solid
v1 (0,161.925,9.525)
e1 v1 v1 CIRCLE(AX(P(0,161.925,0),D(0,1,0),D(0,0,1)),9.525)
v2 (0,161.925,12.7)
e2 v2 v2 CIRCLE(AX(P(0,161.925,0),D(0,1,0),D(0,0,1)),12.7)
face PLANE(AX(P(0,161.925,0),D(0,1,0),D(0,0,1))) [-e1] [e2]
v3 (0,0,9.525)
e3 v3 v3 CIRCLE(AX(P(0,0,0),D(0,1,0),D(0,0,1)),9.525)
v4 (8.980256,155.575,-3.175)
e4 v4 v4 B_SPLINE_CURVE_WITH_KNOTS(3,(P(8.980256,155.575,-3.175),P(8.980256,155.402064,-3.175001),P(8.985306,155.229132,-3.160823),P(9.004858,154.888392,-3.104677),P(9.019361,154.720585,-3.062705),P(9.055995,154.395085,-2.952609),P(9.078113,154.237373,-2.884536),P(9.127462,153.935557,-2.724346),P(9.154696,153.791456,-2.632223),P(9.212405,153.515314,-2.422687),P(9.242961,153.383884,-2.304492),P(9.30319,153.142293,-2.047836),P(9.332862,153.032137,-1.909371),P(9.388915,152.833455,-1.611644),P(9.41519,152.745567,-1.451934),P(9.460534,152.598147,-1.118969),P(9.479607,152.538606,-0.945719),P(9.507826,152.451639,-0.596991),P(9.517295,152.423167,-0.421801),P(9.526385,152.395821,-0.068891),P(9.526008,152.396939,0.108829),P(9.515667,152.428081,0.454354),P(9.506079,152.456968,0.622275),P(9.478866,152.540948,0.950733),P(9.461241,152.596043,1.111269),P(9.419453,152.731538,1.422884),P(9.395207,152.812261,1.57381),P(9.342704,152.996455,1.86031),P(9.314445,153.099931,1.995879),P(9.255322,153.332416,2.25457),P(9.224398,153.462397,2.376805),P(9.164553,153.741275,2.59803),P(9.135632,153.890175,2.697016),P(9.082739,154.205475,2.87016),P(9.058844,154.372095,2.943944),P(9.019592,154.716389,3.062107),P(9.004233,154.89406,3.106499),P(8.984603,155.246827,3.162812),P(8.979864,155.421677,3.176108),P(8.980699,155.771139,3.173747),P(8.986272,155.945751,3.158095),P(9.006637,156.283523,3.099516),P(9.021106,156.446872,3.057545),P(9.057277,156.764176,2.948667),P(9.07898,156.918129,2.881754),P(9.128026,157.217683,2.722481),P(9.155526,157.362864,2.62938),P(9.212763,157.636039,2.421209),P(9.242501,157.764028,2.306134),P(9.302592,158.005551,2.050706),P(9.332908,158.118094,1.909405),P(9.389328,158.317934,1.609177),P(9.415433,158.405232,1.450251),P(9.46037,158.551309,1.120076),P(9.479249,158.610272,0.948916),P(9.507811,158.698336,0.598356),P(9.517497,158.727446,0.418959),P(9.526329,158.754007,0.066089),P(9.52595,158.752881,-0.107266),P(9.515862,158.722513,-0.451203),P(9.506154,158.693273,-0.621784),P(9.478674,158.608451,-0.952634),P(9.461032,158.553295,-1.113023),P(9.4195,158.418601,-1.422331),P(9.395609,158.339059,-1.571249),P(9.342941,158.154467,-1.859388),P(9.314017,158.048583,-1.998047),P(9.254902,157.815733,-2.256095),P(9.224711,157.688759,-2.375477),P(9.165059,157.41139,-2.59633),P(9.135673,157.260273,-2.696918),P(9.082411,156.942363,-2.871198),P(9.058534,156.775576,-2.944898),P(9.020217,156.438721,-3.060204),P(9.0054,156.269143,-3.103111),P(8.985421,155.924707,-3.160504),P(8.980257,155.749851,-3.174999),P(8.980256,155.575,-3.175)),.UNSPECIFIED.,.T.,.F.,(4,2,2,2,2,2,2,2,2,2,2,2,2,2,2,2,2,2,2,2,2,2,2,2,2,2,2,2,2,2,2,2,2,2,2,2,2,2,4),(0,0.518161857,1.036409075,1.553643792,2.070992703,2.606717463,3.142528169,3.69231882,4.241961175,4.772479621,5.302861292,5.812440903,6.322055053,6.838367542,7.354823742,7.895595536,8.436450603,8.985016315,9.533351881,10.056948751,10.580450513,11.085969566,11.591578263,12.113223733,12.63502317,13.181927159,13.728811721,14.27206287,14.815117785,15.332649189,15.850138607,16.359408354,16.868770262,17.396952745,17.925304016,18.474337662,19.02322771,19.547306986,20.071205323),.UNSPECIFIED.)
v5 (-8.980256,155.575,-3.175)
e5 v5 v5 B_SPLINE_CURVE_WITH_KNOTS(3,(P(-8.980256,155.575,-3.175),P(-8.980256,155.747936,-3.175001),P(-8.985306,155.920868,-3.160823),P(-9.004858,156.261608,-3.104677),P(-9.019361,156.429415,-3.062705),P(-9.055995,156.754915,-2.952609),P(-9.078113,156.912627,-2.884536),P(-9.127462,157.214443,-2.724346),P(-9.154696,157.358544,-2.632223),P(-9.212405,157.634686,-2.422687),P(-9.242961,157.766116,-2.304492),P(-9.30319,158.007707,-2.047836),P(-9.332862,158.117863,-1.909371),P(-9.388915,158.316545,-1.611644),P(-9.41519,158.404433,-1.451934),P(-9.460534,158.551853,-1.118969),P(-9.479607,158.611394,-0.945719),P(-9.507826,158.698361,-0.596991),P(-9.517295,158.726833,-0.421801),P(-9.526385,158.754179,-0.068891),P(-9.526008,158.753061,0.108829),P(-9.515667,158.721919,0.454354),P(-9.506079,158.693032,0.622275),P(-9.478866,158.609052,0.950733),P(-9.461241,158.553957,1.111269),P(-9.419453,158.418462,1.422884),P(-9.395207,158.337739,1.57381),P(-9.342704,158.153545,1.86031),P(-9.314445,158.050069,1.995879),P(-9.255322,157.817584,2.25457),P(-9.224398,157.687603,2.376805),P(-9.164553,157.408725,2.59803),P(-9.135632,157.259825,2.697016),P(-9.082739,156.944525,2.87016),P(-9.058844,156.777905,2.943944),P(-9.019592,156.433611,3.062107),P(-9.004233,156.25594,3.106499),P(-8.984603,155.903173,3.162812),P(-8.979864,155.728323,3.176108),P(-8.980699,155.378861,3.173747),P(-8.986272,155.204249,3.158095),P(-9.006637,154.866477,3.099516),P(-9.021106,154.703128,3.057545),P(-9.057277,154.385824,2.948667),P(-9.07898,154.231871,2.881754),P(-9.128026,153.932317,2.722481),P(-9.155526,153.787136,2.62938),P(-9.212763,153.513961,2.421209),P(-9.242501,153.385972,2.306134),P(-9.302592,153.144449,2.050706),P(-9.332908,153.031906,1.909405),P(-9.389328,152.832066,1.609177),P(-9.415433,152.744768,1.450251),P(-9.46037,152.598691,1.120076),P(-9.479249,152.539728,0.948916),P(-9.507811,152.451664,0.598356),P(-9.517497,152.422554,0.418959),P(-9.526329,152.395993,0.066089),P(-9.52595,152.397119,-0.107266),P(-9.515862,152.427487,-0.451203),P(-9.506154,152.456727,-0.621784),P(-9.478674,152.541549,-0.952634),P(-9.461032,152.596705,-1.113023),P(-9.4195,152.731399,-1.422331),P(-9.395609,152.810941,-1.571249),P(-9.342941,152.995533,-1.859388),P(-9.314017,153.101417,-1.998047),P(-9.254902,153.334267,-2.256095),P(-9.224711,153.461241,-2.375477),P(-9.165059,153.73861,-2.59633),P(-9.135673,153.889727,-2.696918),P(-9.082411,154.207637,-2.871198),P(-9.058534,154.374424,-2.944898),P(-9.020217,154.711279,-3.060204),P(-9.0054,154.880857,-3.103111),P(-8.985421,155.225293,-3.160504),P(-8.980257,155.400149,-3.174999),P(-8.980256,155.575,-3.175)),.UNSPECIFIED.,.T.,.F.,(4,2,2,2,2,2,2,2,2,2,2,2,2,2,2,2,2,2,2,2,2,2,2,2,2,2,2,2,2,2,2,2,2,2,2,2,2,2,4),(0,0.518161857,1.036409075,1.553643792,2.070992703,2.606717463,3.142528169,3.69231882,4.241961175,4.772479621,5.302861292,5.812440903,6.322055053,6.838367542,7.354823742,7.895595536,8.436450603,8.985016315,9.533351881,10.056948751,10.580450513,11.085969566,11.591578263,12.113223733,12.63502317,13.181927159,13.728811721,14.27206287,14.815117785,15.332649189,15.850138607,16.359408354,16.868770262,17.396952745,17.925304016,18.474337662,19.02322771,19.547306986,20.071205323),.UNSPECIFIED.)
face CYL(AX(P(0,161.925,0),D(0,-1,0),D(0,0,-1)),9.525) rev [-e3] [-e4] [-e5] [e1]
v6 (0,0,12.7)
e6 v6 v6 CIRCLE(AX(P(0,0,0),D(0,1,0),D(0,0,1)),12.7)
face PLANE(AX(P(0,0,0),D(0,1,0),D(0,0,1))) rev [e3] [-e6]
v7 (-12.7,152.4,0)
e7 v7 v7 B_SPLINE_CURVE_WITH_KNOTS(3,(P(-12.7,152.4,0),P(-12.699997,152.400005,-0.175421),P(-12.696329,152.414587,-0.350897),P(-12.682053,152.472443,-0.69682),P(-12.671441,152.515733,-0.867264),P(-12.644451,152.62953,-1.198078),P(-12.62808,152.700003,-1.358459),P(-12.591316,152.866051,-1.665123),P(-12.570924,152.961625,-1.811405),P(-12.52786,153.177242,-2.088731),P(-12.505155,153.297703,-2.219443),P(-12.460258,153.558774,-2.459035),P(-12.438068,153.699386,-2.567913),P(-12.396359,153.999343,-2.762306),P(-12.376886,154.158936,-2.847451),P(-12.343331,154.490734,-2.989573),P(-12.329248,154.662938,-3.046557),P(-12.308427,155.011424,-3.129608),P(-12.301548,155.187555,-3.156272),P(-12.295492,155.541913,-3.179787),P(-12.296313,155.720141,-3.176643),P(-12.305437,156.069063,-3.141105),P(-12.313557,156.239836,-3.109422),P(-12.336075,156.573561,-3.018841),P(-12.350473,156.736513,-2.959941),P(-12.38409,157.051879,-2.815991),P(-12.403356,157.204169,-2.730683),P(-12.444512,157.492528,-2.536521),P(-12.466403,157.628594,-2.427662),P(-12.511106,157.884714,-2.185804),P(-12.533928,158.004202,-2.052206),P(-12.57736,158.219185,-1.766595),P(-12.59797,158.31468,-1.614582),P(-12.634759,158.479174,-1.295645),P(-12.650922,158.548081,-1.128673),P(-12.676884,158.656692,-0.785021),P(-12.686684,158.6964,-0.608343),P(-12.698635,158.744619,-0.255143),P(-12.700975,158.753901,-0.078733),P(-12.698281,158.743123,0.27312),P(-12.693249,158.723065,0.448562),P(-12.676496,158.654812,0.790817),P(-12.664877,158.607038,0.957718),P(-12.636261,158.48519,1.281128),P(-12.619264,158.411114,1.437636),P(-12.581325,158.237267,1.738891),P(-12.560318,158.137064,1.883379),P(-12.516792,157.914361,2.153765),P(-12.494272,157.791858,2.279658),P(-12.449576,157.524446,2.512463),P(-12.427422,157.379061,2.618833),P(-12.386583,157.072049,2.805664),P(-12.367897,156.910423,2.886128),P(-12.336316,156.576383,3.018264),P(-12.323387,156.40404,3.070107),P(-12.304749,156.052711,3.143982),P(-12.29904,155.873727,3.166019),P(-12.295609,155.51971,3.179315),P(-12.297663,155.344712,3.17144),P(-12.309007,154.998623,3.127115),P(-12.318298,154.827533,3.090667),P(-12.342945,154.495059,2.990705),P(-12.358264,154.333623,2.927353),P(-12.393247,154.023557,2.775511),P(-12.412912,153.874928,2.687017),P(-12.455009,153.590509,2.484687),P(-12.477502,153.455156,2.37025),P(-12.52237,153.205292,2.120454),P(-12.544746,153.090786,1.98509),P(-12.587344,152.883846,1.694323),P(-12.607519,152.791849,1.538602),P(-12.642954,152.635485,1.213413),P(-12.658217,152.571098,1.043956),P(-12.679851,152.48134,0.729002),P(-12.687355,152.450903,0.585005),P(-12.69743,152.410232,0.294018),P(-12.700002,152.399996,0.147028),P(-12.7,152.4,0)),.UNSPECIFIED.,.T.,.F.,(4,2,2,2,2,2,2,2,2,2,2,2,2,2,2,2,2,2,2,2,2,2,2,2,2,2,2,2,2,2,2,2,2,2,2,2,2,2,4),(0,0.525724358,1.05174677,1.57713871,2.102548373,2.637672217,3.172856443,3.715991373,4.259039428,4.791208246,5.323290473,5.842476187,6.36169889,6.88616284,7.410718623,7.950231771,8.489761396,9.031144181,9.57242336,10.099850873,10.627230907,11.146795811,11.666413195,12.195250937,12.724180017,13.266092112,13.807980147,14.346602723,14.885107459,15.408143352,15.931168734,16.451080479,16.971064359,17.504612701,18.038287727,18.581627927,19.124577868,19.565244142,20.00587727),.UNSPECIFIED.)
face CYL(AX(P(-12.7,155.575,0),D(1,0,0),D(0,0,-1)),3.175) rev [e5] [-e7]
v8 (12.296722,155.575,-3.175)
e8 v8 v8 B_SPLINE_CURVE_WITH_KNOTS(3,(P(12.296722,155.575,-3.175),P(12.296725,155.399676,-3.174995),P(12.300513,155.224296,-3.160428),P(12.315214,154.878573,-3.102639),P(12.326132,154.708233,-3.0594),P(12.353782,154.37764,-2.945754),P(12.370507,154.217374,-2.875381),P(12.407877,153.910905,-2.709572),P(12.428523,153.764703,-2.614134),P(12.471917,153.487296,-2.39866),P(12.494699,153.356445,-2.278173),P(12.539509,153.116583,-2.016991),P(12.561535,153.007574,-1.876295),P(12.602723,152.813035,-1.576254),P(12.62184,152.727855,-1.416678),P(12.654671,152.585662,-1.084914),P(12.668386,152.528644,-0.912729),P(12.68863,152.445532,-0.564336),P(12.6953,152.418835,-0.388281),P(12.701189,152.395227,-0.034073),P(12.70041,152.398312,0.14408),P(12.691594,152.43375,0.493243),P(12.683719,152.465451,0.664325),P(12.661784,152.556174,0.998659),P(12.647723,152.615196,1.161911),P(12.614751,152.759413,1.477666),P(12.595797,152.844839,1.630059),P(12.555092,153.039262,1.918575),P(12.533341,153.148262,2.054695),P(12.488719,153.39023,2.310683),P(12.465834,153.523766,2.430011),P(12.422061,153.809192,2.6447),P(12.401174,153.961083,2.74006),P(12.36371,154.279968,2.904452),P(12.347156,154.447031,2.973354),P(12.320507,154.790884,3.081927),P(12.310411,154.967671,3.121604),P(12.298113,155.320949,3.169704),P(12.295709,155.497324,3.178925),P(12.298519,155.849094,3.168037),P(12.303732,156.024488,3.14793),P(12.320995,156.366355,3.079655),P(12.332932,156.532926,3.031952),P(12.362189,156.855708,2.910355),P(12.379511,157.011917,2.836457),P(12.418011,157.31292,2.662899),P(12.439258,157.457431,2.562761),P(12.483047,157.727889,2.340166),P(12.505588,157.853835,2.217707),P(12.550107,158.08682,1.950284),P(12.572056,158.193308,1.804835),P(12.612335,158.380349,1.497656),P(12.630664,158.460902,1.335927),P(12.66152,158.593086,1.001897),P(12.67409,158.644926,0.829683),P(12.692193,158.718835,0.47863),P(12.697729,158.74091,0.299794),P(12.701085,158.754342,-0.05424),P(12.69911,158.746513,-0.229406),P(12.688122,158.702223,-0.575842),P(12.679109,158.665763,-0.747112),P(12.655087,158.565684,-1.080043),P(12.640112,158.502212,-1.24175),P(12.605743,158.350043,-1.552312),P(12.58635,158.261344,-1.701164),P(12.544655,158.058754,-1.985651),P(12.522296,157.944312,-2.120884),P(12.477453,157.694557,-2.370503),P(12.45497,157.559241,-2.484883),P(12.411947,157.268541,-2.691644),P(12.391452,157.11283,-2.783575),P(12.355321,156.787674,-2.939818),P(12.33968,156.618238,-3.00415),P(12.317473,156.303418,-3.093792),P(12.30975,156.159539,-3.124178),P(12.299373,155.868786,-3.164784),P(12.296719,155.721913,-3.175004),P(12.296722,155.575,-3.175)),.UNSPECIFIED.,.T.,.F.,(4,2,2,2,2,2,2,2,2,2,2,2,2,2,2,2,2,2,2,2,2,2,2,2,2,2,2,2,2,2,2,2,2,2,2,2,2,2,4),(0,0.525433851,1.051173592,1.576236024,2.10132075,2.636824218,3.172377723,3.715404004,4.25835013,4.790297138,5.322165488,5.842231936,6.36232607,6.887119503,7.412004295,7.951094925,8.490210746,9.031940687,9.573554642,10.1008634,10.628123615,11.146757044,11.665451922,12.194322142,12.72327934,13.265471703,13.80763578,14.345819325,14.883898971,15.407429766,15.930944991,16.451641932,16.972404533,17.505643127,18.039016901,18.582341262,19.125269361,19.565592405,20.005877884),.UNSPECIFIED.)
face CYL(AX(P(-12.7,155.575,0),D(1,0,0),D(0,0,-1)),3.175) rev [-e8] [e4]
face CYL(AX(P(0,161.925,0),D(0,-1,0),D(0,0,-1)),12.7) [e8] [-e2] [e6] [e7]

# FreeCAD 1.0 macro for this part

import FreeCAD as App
import Part
import Sketcher
Q = App.Units.Quantity

doc = App.newDocument("Part")
body = doc.addObject("PartDesign::Body", "Body")

# Sketch on XZ plane
sketch1 = body.newObject("Sketcher::SketchObject", "Sketch")
sketch1.AttachmentSupport = (doc.getObject("XZ_Plane"), [""])
sketch1.MapMode = "FlatFace"
sketch1.addGeometry([
    Part.Circle(App.Vector(0, 0, 0), App.Vector(0, 0, 1), 13),
    Part.Circle(App.Vector(0, 0, 0), App.Vector(0, 0, 1), 10),
], False)
sketch1.addConstraint([
    Sketcher.Constraint("Coincident", 0, 3, -1, 1),
    Sketcher.Constraint("Coincident", 1, 3, -1, 1),
    Sketcher.Constraint("Diameter", 0, Q("1 in")),
    Sketcher.Constraint("Diameter", 1, Q("0.75 in")),
])
pad1 = body.newObject("PartDesign::Pad", "Pad")
pad1.Profile = sketch1
pad1.Length = Q("6.375 in")
pad1.Reversed = True

# Sketch on YZ plane
sketch2 = body.newObject("Sketcher::SketchObject", "Sketch001")
sketch2.AttachmentSupport = (doc.getObject("YZ_Plane"), [""])
sketch2.MapMode = "FlatFace"
sketch2.addGeometry(Part.Circle(App.Vector(155.6, 0, 0), App.Vector(0, 0, 1), 3.2), False)
sketch2.addConstraint([
    Sketcher.Constraint("PointOnObject", 0, 3, -1),
    Sketcher.Constraint("Diameter", 0, Q("0.25 in")),
    Sketcher.Constraint("DistanceX", -1, 1, 0, 3, Q("6.125 in")),
])
pocket1 = body.newObject("PartDesign::Pocket", "Pocket")
pocket1.Profile = sketch2
pocket1.Type = "ThroughAll"
pocket1.Midplane = True

doc.recompute()
